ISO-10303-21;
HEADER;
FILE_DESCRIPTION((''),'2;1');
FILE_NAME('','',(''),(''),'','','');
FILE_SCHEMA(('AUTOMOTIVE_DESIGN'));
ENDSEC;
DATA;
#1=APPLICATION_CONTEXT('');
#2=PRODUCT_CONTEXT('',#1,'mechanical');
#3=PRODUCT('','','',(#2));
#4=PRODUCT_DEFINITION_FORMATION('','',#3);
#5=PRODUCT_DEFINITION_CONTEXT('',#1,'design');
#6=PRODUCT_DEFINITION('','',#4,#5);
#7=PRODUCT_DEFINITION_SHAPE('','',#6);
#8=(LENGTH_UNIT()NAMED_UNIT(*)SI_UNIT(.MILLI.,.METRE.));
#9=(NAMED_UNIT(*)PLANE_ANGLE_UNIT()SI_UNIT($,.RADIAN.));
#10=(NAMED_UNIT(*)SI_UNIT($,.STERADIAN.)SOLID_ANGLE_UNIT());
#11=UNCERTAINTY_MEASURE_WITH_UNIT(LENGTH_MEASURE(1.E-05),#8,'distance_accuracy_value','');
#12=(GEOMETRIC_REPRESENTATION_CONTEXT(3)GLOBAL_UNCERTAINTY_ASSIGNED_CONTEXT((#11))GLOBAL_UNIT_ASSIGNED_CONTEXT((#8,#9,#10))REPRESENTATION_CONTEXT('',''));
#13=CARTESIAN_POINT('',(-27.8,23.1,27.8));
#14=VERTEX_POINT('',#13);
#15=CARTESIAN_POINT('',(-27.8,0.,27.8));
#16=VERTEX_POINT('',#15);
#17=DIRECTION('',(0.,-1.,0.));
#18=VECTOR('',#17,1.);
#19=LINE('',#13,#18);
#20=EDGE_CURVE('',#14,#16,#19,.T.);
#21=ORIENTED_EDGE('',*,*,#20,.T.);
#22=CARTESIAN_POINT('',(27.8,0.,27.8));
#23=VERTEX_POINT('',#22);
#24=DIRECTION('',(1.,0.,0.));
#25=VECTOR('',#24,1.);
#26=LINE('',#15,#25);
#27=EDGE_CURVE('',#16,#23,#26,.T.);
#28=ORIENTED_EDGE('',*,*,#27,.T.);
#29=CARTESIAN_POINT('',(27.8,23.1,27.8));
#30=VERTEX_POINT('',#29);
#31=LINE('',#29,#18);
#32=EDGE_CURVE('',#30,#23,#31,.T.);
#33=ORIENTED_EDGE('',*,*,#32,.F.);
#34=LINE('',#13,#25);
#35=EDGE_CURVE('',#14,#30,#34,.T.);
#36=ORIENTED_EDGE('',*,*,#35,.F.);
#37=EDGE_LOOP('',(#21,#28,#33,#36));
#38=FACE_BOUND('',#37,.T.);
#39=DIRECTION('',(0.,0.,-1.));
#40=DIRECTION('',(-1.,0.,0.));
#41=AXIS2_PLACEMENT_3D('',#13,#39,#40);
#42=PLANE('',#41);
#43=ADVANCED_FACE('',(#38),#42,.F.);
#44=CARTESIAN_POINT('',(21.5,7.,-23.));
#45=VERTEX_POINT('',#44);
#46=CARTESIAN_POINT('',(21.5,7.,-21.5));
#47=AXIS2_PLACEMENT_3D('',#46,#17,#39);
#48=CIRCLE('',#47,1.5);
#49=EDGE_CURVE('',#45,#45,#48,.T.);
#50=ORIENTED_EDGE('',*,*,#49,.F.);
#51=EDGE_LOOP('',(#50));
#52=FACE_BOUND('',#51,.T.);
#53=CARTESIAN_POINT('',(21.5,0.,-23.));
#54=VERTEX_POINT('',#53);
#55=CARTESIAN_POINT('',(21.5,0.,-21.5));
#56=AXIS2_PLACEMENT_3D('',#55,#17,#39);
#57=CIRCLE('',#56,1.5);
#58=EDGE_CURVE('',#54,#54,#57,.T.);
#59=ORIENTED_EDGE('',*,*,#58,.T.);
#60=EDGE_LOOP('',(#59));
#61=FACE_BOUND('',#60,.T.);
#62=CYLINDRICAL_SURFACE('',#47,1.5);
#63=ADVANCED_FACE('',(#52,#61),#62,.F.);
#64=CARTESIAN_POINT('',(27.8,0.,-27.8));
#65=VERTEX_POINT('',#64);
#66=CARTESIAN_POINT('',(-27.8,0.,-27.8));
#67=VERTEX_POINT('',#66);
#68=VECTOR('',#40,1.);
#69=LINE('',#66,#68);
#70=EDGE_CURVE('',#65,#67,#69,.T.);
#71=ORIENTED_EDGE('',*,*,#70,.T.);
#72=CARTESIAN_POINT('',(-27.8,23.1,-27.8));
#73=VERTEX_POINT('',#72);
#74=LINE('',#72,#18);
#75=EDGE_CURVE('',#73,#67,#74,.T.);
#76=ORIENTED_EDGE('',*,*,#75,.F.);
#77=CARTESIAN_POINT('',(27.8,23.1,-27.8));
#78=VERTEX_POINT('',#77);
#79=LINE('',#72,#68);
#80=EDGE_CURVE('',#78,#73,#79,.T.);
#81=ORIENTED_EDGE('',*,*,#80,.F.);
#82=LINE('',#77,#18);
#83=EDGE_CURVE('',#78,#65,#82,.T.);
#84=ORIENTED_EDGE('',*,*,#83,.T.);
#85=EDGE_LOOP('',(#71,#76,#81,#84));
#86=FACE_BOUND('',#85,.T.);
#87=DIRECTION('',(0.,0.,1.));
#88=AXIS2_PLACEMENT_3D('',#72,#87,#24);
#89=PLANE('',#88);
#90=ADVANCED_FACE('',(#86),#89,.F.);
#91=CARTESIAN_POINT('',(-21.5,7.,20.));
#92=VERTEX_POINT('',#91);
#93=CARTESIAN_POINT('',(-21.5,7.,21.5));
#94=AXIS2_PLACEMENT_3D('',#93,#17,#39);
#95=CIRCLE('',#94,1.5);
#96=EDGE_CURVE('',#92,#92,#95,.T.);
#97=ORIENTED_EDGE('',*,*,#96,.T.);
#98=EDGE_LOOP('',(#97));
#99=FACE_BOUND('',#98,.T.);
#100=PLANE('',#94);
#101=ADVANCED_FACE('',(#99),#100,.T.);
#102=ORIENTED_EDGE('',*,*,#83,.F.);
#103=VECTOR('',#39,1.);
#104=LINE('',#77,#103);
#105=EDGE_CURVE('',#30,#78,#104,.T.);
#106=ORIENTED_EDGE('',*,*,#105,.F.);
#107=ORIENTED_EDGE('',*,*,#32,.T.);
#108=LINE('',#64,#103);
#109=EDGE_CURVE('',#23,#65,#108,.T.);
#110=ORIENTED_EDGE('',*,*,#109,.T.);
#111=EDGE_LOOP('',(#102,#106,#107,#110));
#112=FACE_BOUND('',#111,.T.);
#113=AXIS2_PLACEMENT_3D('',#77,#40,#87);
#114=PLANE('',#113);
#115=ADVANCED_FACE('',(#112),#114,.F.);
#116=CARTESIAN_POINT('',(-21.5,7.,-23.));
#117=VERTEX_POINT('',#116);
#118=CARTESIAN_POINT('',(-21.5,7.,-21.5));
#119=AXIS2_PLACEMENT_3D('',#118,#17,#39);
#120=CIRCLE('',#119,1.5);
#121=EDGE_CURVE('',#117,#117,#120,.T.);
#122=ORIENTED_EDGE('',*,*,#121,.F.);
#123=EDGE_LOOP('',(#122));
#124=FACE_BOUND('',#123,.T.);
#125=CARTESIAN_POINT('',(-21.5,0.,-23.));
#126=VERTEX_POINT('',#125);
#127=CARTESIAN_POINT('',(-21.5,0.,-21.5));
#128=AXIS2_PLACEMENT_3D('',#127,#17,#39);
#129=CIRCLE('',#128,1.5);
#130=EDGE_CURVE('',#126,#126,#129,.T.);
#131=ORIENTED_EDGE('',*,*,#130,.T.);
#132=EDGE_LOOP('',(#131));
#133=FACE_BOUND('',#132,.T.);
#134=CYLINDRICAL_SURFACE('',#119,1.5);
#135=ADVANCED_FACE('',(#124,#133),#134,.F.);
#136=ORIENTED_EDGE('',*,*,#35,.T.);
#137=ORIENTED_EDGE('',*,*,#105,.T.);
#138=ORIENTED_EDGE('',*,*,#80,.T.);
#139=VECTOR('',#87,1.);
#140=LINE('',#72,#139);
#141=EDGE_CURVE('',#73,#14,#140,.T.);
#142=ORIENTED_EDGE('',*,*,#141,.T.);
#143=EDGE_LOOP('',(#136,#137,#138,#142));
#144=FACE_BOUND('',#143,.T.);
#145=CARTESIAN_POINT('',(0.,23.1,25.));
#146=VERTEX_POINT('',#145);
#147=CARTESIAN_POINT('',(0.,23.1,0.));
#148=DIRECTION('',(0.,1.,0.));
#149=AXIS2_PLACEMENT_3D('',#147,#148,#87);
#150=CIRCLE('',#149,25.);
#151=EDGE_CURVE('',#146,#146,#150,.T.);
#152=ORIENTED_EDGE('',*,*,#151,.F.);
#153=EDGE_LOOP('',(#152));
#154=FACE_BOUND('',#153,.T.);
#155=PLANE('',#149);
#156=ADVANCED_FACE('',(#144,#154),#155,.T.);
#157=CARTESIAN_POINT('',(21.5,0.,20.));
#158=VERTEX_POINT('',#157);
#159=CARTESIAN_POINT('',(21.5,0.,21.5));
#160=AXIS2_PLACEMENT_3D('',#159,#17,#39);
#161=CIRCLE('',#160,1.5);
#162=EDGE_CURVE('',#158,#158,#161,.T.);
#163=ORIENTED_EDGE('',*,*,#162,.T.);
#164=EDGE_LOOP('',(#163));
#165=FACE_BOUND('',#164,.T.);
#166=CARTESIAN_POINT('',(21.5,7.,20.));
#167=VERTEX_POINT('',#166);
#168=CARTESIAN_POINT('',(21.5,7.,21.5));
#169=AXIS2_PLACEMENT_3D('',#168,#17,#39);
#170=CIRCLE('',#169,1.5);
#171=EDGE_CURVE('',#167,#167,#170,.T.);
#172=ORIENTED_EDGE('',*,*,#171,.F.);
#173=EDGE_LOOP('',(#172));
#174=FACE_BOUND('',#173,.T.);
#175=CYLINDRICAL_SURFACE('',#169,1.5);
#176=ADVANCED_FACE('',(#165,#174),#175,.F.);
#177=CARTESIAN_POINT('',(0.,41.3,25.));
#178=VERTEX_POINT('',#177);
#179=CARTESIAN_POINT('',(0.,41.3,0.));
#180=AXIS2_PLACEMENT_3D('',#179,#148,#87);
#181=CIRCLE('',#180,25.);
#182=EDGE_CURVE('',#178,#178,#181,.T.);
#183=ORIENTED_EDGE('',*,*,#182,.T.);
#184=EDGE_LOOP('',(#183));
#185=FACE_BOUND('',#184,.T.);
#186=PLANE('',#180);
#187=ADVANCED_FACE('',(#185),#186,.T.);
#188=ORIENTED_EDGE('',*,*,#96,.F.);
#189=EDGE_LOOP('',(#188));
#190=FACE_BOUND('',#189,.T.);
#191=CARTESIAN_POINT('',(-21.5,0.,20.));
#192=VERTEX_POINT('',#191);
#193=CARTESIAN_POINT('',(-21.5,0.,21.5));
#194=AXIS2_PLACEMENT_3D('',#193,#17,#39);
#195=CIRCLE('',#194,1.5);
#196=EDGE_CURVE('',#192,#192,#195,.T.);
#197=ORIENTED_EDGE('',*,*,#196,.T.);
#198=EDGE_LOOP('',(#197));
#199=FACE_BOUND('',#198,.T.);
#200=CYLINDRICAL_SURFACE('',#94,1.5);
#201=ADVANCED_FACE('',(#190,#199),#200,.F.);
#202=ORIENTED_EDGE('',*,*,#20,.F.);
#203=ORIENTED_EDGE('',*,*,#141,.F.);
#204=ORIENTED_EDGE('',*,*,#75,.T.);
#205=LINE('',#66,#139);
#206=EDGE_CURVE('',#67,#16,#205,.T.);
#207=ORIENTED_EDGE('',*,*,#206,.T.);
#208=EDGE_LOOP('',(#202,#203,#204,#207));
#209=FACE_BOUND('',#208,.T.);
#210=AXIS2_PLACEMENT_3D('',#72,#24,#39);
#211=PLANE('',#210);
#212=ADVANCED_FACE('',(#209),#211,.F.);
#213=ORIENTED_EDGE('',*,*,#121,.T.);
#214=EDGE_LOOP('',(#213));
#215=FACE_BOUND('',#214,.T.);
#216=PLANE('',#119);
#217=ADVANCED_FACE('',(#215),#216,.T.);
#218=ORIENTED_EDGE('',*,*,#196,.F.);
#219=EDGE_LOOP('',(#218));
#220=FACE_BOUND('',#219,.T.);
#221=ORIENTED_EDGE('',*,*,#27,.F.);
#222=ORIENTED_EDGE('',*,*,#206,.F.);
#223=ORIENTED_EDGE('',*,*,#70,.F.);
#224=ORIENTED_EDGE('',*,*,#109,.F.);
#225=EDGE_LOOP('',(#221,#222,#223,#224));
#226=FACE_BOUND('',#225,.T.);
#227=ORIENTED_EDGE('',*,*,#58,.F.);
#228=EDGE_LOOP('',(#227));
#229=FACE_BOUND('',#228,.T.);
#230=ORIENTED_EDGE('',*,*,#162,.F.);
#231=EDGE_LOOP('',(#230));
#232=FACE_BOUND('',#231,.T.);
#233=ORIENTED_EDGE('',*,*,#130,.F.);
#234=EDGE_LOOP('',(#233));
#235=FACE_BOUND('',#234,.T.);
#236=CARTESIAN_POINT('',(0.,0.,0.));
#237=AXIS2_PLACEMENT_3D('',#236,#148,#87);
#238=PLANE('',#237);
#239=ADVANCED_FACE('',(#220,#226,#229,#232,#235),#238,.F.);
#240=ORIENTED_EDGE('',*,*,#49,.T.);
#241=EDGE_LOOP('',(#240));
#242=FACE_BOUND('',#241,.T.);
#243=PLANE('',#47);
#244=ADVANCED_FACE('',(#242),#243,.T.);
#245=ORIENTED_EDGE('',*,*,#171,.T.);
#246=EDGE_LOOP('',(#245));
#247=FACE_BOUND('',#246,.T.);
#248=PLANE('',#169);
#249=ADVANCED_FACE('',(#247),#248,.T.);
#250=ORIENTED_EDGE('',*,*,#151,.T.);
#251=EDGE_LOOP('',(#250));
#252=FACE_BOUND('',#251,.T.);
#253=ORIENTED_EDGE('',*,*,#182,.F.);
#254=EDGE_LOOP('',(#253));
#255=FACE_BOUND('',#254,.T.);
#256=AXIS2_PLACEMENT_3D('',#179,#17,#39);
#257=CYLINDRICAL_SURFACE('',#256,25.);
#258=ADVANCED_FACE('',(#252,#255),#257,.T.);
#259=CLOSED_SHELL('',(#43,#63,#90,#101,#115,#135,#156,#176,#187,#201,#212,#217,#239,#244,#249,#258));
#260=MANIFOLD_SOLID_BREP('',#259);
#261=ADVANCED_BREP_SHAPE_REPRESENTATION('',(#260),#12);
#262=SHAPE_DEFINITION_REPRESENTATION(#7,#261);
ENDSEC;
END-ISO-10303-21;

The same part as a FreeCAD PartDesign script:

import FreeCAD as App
import Part
import Sketcher


def add_polygon(sketch, points):
    """Adds a closed chain of lines whose ends are joined by coincident constraints."""
    first, n = sketch.GeometryCount, len(points)
    for a, b in zip(points, points[1:] + points[:1]):
        sketch.addGeometry(Part.LineSegment(App.Vector(*a, 0), App.Vector(*b, 0)), False)
    for i in range(n):
        sketch.addConstraint(Sketcher.Constraint("Coincident", first + i, 2, first + (i + 1) % n, 1))

doc = App.newDocument("Part")
body = doc.addObject("PartDesign::Body", "Body")

sketch1 = doc.addObject("Sketcher::SketchObject", "Sketch")
body.addObject(sketch1)
sketch1.AttachmentSupport = (doc.XZ_Plane, [""])
sketch1.MapMode = "FlatFace"
add_polygon(sketch1, [(-27.8, -27.8), (-27.8, 27.8), (27.8, 27.8), (27.8, -27.8)])
sketch1.addConstraint([
    Sketcher.Constraint("Vertical", 0),
    Sketcher.Constraint("Horizontal", 1),
    Sketcher.Constraint("Vertical", 2),
    Sketcher.Constraint("Horizontal", 3),
    Sketcher.Constraint("Symmetric", 0, 2, 2, 2, -1, 1),
    Sketcher.Constraint("Equal", 3, 0),
    Sketcher.Constraint("DistanceX", 1, 1, 1, 2, 55.6),
])
pad1 = doc.addObject("PartDesign::Pad", "Pad")
body.addObject(pad1)
pad1.Profile = sketch1
pad1.Length = 23.1
pad1.Reversed = True

sketch2 = doc.addObject("Sketcher::SketchObject", "Sketch001")
body.addObject(sketch2)
sketch2.AttachmentSupport = (doc.XZ_Plane, [""])
sketch2.MapMode = "FlatFace"
sketch2.AttachmentOffset = App.Placement(App.Vector(0, 0, -23.1), App.Rotation())
sketch2.addGeometry(Part.Circle(App.Vector(0, 0, 0), App.Vector(0, 0, 1), 25), False)
sketch2.addConstraint([
    Sketcher.Constraint("Coincident", 0, 3, -1, 1),
    Sketcher.Constraint("Diameter", 0, 50.0),
])
pad2 = doc.addObject("PartDesign::Pad", "Pad001")
body.addObject(pad2)
pad2.Profile = sketch2
pad2.Length = 18.2
pad2.Reversed = True

sketch3 = doc.addObject("Sketcher::SketchObject", "Sketch002")
body.addObject(sketch3)
sketch3.AttachmentSupport = (doc.XZ_Plane, [""])
sketch3.MapMode = "FlatFace"
sketch3.addGeometry([
    Part.Circle(App.Vector(-21.5, 21.5, 0), App.Vector(0, 0, 1), 1.5),
    Part.Circle(App.Vector(21.5, 21.5, 0), App.Vector(0, 0, 1), 1.5),
    Part.Circle(App.Vector(-21.5, -21.5, 0), App.Vector(0, 0, 1), 1.5),
    Part.Circle(App.Vector(21.5, -21.5, 0), App.Vector(0, 0, 1), 1.5),
], False)
sketch3.addConstraint([
    Sketcher.Constraint("Equal", 0, 1),
    Sketcher.Constraint("Equal", 1, 2),
    Sketcher.Constraint("Equal", 2, 3),
    Sketcher.Constraint("Symmetric", 1, 3, 2, 3, -1, 1),
    Sketcher.Constraint("Symmetric", 0, 3, 3, 3, -1, 1),
    Sketcher.Constraint("Symmetric", 0, 3, 1, 3, -2),
    Sketcher.Constraint("Diameter", 0, 3.0),
    Sketcher.Constraint("DistanceX", 0, 3, 1, 3, 43.0),
    Sketcher.Constraint("DistanceY", 2, 3, 0, 3, 43.0),
])
pocket1 = doc.addObject("PartDesign::Pocket", "Pocket")
body.addObject(pocket1)
pocket1.Profile = sketch3
pocket1.Length = 7

doc.recompute()
